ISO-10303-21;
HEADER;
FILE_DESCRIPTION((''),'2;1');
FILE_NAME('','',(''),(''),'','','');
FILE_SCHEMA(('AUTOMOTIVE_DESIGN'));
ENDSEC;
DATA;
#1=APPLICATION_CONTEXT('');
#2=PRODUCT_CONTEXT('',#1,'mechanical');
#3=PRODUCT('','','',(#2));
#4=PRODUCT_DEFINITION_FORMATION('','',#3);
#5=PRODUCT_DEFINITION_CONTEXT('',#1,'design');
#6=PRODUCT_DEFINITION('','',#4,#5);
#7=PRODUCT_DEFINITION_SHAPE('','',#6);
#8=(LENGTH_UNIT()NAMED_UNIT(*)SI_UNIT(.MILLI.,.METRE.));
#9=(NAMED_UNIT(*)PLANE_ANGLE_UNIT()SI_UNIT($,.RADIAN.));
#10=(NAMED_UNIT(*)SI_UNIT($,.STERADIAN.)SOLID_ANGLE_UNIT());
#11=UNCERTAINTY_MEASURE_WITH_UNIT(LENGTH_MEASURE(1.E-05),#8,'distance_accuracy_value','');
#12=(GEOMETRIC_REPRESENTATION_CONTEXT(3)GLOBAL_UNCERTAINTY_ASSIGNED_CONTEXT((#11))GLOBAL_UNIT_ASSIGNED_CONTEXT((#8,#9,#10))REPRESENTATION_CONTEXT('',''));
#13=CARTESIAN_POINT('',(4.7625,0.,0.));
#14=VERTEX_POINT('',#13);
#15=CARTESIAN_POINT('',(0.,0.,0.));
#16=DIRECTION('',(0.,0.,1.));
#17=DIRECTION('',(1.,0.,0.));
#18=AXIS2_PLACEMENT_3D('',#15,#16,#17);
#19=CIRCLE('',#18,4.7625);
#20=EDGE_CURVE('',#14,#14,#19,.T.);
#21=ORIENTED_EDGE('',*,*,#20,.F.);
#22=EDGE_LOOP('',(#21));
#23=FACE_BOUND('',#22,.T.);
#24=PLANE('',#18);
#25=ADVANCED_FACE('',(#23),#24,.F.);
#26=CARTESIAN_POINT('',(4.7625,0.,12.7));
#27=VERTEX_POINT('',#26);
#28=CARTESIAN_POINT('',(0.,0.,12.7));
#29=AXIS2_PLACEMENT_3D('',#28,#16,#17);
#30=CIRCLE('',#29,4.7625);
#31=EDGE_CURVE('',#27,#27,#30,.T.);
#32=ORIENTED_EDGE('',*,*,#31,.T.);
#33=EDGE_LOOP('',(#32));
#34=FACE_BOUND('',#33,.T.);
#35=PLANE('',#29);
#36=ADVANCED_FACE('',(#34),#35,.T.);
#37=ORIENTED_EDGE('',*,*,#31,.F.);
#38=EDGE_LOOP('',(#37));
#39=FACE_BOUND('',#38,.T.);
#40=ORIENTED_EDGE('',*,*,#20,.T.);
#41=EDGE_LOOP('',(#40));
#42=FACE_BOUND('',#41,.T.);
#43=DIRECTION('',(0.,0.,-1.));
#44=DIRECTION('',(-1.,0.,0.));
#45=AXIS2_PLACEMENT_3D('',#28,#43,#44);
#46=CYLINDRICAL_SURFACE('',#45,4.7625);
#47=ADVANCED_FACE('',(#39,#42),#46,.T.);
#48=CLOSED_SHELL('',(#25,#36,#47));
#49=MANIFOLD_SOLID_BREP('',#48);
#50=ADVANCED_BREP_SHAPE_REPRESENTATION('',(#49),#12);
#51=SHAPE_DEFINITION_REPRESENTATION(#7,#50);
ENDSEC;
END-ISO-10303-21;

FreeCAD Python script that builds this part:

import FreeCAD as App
import Part
import Sketcher
from FreeCAD import Vector
Q = App.Units.Quantity

doc = App.newDocument("Part")
params = doc.addObject("Spreadsheet::Sheet", "Params")
for row, (alias, value) in enumerate([
    ("sketch1_diameter", "0.375 in"),
    ("pad1_length", "0.5 in"),
], start=1):
    params.set(f"A{row}", alias)
    params.set(f"B{row}", "=" + value)
    params.setAlias(f"B{row}", alias)

body = doc.addObject("PartDesign::Body", "Body")

# Sketch on XY plane
sketch1 = body.newObject("Sketcher::SketchObject", "Sketch")
sketch1.AttachmentSupport = (doc.getObject("XY_Plane"), [""])
sketch1.MapMode = "FlatFace"
sketch1.addGeometry(Part.Circle(Vector(0, 0, 0), Vector(0, 0, 1), 4.8), False)
sketch1.addConstraint(Sketcher.Constraint("Coincident", 0, 3, -1, 1))
sketch1.addConstraint(Sketcher.Constraint("Diameter", 0, Q("0.375 in")))
sketch1.setExpression("Constraints[1]", "Params.sketch1_diameter")
pad1 = body.newObject("PartDesign::Pad", "Pad")
pad1.Profile = sketch1
pad1.setExpression("Length", "Params.pad1_length")

doc.recompute()
